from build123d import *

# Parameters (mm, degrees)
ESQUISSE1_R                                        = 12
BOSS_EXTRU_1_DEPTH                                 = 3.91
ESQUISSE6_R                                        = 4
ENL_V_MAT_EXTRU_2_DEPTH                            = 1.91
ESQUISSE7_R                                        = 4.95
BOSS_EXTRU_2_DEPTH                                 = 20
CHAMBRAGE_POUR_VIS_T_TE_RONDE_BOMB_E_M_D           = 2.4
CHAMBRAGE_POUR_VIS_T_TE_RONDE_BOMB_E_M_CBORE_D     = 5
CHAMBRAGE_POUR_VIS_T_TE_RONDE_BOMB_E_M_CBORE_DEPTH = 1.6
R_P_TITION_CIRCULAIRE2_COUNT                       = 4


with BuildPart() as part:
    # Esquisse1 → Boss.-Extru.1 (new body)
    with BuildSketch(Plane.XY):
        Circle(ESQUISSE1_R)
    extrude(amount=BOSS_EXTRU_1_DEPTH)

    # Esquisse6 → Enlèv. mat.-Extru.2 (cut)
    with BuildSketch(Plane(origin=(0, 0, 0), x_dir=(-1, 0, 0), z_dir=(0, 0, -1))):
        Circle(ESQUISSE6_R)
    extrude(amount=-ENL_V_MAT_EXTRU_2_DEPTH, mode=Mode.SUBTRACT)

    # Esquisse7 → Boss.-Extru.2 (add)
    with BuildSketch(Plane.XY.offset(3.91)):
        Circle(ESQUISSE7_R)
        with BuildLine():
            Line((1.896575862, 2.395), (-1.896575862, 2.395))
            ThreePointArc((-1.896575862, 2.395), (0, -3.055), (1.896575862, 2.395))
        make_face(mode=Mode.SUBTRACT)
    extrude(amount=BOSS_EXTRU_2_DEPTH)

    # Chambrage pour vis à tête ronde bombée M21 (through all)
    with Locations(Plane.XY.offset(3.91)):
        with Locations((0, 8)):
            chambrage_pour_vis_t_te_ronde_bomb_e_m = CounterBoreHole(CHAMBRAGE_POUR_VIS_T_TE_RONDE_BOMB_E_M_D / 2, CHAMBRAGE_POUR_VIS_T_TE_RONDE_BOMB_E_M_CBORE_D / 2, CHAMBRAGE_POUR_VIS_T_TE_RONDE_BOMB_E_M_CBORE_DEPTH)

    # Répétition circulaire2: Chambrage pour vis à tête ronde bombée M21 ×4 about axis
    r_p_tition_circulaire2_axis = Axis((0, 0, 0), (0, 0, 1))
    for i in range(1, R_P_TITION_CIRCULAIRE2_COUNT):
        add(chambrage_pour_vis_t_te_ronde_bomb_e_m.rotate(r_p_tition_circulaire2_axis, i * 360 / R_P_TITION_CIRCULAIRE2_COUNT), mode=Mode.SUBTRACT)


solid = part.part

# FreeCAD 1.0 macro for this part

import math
import FreeCAD as App
import Part
import Sketcher
from FreeCAD import Vector

doc = App.newDocument("Part")
params = doc.addObject("Spreadsheet::Sheet", "Params")
for row, (alias, value) in enumerate([
    ("sketch1_diameter", "24 mm"),
    ("pad1_length", "3.91 mm"),
    ("sketch2_diameter", "8 mm"),
    ("pocket1_length", "1.91 mm"),
    ("sketch3_diameter", "9.9 mm"),
    ("pad2_length", "20 mm"),
    ("sketch4_diameter", "2.4 mm"),
    ("hole_diameter", "2.4 mm"),
    ("hole_cbore_diameter", "5 mm"),
    ("hole_cbore_depth", "1.6 mm"),
], start=1):
    params.set(f"A{row}", alias)
    params.set(f"B{row}", "=" + value)
    params.setAlias(f"B{row}", alias)

body = doc.addObject("PartDesign::Body", "Body")

sketch1 = doc.addObject("Sketcher::SketchObject", "Sketch")
body.addObject(sketch1)
sketch1.AttachmentSupport = (doc.XY_Plane, [""])
sketch1.MapMode = "FlatFace"
sketch1.addGeometry(Part.Circle(Vector(0, 0, 0), Vector(0, 0, 1), 12), False)
sketch1.addConstraint([
    Sketcher.Constraint("Coincident", 0, 3, -1, 1),
    Sketcher.Constraint("Diameter", 0, 24.0),
])
sketch1.setExpression("Constraints[1]", "Params.sketch1_diameter")
pad1 = doc.addObject("PartDesign::Pad", "Pad")
body.addObject(pad1)
pad1.Profile = sketch1
pad1.setExpression("Length", "Params.pad1_length")

sketch2 = doc.addObject("Sketcher::SketchObject", "Sketch001")
body.addObject(sketch2)
sketch2.AttachmentSupport = (doc.XY_Plane, [""])
sketch2.MapMode = "FlatFace"
sketch2.addGeometry(Part.Circle(Vector(0, 0, 0), Vector(0, 0, 1), 4), False)
sketch2.addConstraint([
    Sketcher.Constraint("Coincident", 0, 3, -1, 1),
    Sketcher.Constraint("Diameter", 0, 8.0),
])
sketch2.setExpression("Constraints[1]", "Params.sketch2_diameter")
pocket1 = doc.addObject("PartDesign::Pocket", "Pocket")
body.addObject(pocket1)
pocket1.Profile = sketch2
pocket1.setExpression("Length", "Params.pocket1_length")
pocket1.Reversed = True

sketch3 = doc.addObject("Sketcher::SketchObject", "Sketch002")
body.addObject(sketch3)
sketch3.AttachmentSupport = (doc.XY_Plane, [""])
sketch3.MapMode = "FlatFace"
sketch3.AttachmentOffset = App.Placement(Vector(0, 0, 3.91), App.Rotation())
sketch3.addGeometry([
    Part.Circle(Vector(0, 0, 0), Vector(0, 0, 1), 5),
    Part.LineSegment(Vector(-1.9, 2.4, 0), Vector(1.9, 2.4, 0)),
    Part.ArcOfCircle(Part.Circle(Vector(0, 0, 0), Vector(0, 0, 1), 3.1), math.radians(128), math.radians(412)),
], False)
sketch3.addConstraint([
    Sketcher.Constraint("Coincident", 1, 1, 2, 1),
    Sketcher.Constraint("Coincident", 2, 2, 1, 2),
    Sketcher.Constraint("Horizontal", 1),
    Sketcher.Constraint("Coincident", 0, 3, -1, 1),
    Sketcher.Constraint("Coincident", 2, 3, -1, 1),
    Sketcher.Constraint("Diameter", 0, 9.9),
    Sketcher.Constraint("Radius", 2, 3.055),
    Sketcher.Constraint("DistanceY", -1, 1, 1, 1, 2.395),
])
sketch3.setExpression("Constraints[5]", "Params.sketch3_diameter")
pad2 = doc.addObject("PartDesign::Pad", "Pad001")
body.addObject(pad2)
pad2.Profile = sketch3
pad2.setExpression("Length", "Params.pad2_length")

sketch4 = doc.addObject("Sketcher::SketchObject", "Sketch003")
body.addObject(sketch4)
sketch4.AttachmentSupport = (doc.XY_Plane, [""])
sketch4.MapMode = "FlatFace"
sketch4.AttachmentOffset = App.Placement(Vector(0, 0, 3.91), App.Rotation())
sketch4.addGeometry(Part.Circle(Vector(0, 8, 0), Vector(0, 0, 1), 1.2), False)
sketch4.addConstraint([
    Sketcher.Constraint("PointOnObject", 0, 3, -2),
    Sketcher.Constraint("Diameter", 0, 2.4),
    Sketcher.Constraint("DistanceY", -1, 1, 0, 3, 8.0),
])
sketch4.setExpression("Constraints[1]", "Params.sketch4_diameter")
doc.recompute()
hole = doc.addObject("PartDesign::Hole", "Hole")
body.addObject(hole)
hole.Profile = sketch4
hole.ThreadType = "None"
hole.setExpression("Diameter", "Params.hole_diameter")
hole.DepthType = "ThroughAll"
hole.HoleCutType = "Counterbore"
hole.setExpression("HoleCutDiameter", "Params.hole_cbore_diameter")
hole.setExpression("HoleCutDepth", "Params.hole_cbore_depth")
doc.recompute()

polarpattern = doc.addObject("PartDesign::PolarPattern", "PolarPattern")
body.addObject(polarpattern)
polarpattern.Originals = [hole]
polarpattern.Axis = (doc.Z_Axis, [""])
polarpattern.Angle = 360
polarpattern.Occurrences = 4
body.Tip = polarpattern

doc.recompute()
